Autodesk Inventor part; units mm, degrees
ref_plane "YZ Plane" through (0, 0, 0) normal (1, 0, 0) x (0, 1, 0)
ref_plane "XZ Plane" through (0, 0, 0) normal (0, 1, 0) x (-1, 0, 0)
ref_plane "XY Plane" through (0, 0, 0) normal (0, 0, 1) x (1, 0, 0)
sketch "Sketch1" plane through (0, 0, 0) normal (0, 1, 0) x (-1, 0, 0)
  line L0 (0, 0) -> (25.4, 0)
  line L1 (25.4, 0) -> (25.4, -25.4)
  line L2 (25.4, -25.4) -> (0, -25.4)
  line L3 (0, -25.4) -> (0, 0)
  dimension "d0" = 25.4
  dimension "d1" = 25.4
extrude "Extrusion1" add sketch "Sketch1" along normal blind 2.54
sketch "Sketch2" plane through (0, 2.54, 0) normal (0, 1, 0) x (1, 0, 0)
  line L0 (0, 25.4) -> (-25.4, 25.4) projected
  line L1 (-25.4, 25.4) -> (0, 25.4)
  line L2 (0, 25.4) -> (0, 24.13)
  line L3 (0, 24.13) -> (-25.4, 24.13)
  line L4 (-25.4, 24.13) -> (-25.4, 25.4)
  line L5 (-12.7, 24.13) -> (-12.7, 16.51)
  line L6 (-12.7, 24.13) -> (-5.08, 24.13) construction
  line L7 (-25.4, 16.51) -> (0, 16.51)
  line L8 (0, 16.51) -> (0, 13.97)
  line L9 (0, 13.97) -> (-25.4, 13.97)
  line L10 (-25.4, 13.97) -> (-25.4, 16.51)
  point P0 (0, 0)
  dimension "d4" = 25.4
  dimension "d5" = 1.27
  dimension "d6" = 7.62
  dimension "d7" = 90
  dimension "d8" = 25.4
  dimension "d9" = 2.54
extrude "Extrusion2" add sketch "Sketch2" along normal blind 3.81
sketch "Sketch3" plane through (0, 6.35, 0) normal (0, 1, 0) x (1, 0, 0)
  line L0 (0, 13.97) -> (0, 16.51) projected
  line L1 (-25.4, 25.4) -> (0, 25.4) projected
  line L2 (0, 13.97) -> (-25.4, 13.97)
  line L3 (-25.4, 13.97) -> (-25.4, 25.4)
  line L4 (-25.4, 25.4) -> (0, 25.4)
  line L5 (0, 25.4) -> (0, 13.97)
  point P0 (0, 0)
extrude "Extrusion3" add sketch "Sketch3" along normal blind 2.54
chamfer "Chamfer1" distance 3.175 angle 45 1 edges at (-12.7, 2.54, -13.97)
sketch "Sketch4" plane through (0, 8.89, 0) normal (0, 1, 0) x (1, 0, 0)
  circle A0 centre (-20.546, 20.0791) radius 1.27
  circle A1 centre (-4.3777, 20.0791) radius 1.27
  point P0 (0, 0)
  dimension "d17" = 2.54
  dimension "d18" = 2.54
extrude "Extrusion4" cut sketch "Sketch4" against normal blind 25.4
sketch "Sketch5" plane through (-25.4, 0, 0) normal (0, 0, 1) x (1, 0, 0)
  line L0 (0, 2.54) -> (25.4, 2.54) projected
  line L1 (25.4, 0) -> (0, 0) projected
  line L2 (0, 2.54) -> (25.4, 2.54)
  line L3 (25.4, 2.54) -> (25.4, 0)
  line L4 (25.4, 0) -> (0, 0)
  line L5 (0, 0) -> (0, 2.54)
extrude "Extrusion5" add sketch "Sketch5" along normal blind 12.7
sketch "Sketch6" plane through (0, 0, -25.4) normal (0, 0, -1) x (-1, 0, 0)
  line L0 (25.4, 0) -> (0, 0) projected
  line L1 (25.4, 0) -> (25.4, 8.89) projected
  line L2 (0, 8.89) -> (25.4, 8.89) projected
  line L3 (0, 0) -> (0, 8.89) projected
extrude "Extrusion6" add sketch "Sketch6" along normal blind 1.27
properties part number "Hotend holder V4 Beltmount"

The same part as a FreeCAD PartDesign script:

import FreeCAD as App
import Part
import Sketcher

V = App.Vector
Q = App.Units.Quantity


def edges_at(feature, points):
    """Names of the edges that pass closest to the given points."""
    edges = feature.Shape.Edges
    near = lambda p: min(range(len(edges)), key=lambda i: edges[i].distToShape(Part.Vertex(*p))[0])
    return sorted({f"Edge{near(p) + 1}" for p in points})


def add_polygon(sketch, points):
    """Adds a closed chain of lines whose ends are joined by coincident constraints."""
    first, n = sketch.GeometryCount, len(points)
    for a, b in zip(points, points[1:] + points[:1]):
        sketch.addGeometry(Part.LineSegment(App.Vector(*a, 0), App.Vector(*b, 0)), False)
    for i in range(n):
        sketch.addConstraint(Sketcher.Constraint("Coincident", first + i, 2, first + (i + 1) % n, 1))

doc = App.newDocument("Part")
body = doc.addObject("PartDesign::Body", "Body")

sketch1 = body.newObject("Sketcher::SketchObject", "Sketch")
sketch1.AttachmentSupport = (doc.getObject("XZ_Plane"), [""])
sketch1.MapMode = "FlatFace"
add_polygon(sketch1, [(-25, 0), (0, 0), (0, -25), (-25, -25)])
sketch1.addConstraint([
    Sketcher.Constraint("Horizontal", 0),
    Sketcher.Constraint("Vertical", 1),
    Sketcher.Constraint("Horizontal", 2),
    Sketcher.Constraint("Vertical", 3),
    Sketcher.Constraint("Coincident", 0, 2, -1, 1),
    Sketcher.Constraint("Equal", 2, 1),
    Sketcher.Constraint("DistanceX", 0, 1, 0, 2, Q("1 in")),
])
pad1 = body.newObject("PartDesign::Pad", "Pad")
pad1.Profile = sketch1
pad1.Length = Q("0.1 in")
pad1.Reversed = True

sketch2 = body.newObject("Sketcher::SketchObject", "Sketch001")
sketch2.AttachmentSupport = (doc.getObject("XZ_Plane"), [""])
sketch2.MapMode = "FlatFace"
sketch2.AttachmentOffset = App.Placement(V(0, 0, -0.1 * 25.4), App.Rotation())
add_polygon(sketch2, [(0, -24.1), (0, -25.4), (-25.4, -25.4), (-25.4, -24.1)])
add_polygon(sketch2, [(0, -16.5), (-25.4, -16.5), (-25.4, -14), (0, -14)])
sketch2.addConstraint([
    Sketcher.Constraint("Vertical", 0),
    Sketcher.Constraint("Horizontal", 1),
    Sketcher.Constraint("Vertical", 2),
    Sketcher.Constraint("Horizontal", 3),
    Sketcher.Constraint("Horizontal", 4),
    Sketcher.Constraint("Vertical", 5),
    Sketcher.Constraint("Horizontal", 6),
    Sketcher.Constraint("Vertical", 7),
    Sketcher.Constraint("PointOnObject", 0, 2, -2),
    Sketcher.Constraint("PointOnObject", 6, 2, -2),
    Sketcher.Constraint("Vertical", 2, 2, 4, 2),
    Sketcher.Constraint("DistanceX", 1, 2, 1, 1, Q("1 in")),
    Sketcher.Constraint("DistanceY", 5, 1, 5, 2, Q("0.1 in")),
    Sketcher.Constraint("DistanceY", 0, 2, -1, 1, Q("1 in")),
    Sketcher.Constraint("DistanceY", 0, 2, 0, 1, Q("0.05 in")),
    Sketcher.Constraint("DistanceY", 2, 2, 4, 2, Q("0.3 in")),
])
pad2 = body.newObject("PartDesign::Pad", "Pad001")
pad2.Profile = sketch2
pad2.Length = Q("0.15 in")
pad2.Reversed = True

sketch3 = body.newObject("Sketcher::SketchObject", "Sketch002")
sketch3.AttachmentSupport = (doc.getObject("XZ_Plane"), [""])
sketch3.MapMode = "FlatFace"
sketch3.AttachmentOffset = App.Placement(V(0, 0, -0.25 * 25.4), App.Rotation())
add_polygon(sketch3, [(-25, -14), (0, -14), (0, -25), (-25, -25)])
sketch3.addConstraint([
    Sketcher.Constraint("Horizontal", 0),
    Sketcher.Constraint("Vertical", 1),
    Sketcher.Constraint("Horizontal", 2),
    Sketcher.Constraint("Vertical", 3),
    Sketcher.Constraint("PointOnObject", 0, 2, -2),
    Sketcher.Constraint("DistanceX", 0, 1, 0, 2, Q("1 in")),
    Sketcher.Constraint("DistanceY", 1, 2, -1, 1, Q("1 in")),
    Sketcher.Constraint("DistanceY", 1, 2, 1, 1, Q("0.45 in")),
])
pad3 = body.newObject("PartDesign::Pad", "Pad002")
pad3.Profile = sketch3
pad3.Length = Q("0.1 in")
pad3.Reversed = True
doc.recompute()

chamfer = body.newObject("PartDesign::Chamfer", "Chamfer")
chamfer.Base = (pad3, edges_at(pad3, [(-12.7, 2.54, -13.97)]))
chamfer.Size = Q("0.125 in")

sketch4 = body.newObject("Sketcher::SketchObject", "Sketch003")
sketch4.AttachmentSupport = (doc.getObject("XZ_Plane"), [""])
sketch4.MapMode = "FlatFace"
sketch4.AttachmentOffset = App.Placement(V(0, 0, -0.35 * 25.4), App.Rotation())
sketch4.addGeometry([
    Part.Circle(V(-20.5, -20.1, 0), V(0, 0, 1), 1.3),
    Part.Circle(V(-4.4, -20.1, 0), V(0, 0, 1), 1.3),
], False)
sketch4.addConstraint([
    Sketcher.Constraint("Equal", 0, 1),
    Sketcher.Constraint("Horizontal", 0, 3, 1, 3),
    Sketcher.Constraint("Diameter", 0, Q("0.1 in")),
    Sketcher.Constraint("DistanceX", 0, 3, -1, 1, Q("0.8089 in")),
    Sketcher.Constraint("DistanceY", 0, 3, -1, 1, Q("0.7905118 in")),
    Sketcher.Constraint("DistanceX", 1, 3, -1, 1, Q("4.3777 mm")),
])
pocket1 = body.newObject("PartDesign::Pocket", "Pocket")
pocket1.Profile = sketch4
pocket1.Length = Q("1 in")
pocket1.Reversed = True

sketch5 = body.newObject("Sketcher::SketchObject", "Sketch004")
sketch5.AttachmentSupport = (doc.getObject("XY_Plane"), [""])
sketch5.MapMode = "FlatFace"
add_polygon(sketch5, [(0, 2.5), (-25.4, 2.5), (-25.4, 0), (0, 0)])
sketch5.addConstraint([
    Sketcher.Constraint("Horizontal", 0),
    Sketcher.Constraint("Vertical", 1),
    Sketcher.Constraint("Horizontal", 2),
    Sketcher.Constraint("Vertical", 3),
    Sketcher.Constraint("Coincident", 2, 2, -1, 1),
    Sketcher.Constraint("DistanceX", 0, 2, 0, 1, Q("1 in")),
    Sketcher.Constraint("DistanceY", 1, 2, 1, 1, Q("0.1 in")),
])
pad4 = body.newObject("PartDesign::Pad", "Pad003")
pad4.Profile = sketch5
pad4.Length = Q("0.5 in")

sketch6 = body.newObject("Sketcher::SketchObject", "Sketch005")
sketch6.AttachmentSupport = (doc.getObject("XY_Plane"), [""])
sketch6.MapMode = "FlatFace"
sketch6.AttachmentOffset = App.Placement(V(0, 0, -1 * 25.4), App.Rotation())
add_polygon(sketch6, [(0, 0), (-25, 0), (-25, 9), (0, 9)])
sketch6.addConstraint([
    Sketcher.Constraint("Horizontal", 0),
    Sketcher.Constraint("Vertical", 1),
    Sketcher.Constraint("Horizontal", 2),
    Sketcher.Constraint("Vertical", 3),
    Sketcher.Constraint("Coincident", 3, 2, -1, 1),
    Sketcher.Constraint("DistanceX", 0, 2, 0, 1, Q("1 in")),
    Sketcher.Constraint("DistanceY", 1, 1, 1, 2, Q("0.35 in")),
])
pad5 = body.newObject("PartDesign::Pad", "Pad004")
pad5.Profile = sketch6
pad5.Length = Q("0.05 in")
pad5.Reversed = True

doc.recompute()
